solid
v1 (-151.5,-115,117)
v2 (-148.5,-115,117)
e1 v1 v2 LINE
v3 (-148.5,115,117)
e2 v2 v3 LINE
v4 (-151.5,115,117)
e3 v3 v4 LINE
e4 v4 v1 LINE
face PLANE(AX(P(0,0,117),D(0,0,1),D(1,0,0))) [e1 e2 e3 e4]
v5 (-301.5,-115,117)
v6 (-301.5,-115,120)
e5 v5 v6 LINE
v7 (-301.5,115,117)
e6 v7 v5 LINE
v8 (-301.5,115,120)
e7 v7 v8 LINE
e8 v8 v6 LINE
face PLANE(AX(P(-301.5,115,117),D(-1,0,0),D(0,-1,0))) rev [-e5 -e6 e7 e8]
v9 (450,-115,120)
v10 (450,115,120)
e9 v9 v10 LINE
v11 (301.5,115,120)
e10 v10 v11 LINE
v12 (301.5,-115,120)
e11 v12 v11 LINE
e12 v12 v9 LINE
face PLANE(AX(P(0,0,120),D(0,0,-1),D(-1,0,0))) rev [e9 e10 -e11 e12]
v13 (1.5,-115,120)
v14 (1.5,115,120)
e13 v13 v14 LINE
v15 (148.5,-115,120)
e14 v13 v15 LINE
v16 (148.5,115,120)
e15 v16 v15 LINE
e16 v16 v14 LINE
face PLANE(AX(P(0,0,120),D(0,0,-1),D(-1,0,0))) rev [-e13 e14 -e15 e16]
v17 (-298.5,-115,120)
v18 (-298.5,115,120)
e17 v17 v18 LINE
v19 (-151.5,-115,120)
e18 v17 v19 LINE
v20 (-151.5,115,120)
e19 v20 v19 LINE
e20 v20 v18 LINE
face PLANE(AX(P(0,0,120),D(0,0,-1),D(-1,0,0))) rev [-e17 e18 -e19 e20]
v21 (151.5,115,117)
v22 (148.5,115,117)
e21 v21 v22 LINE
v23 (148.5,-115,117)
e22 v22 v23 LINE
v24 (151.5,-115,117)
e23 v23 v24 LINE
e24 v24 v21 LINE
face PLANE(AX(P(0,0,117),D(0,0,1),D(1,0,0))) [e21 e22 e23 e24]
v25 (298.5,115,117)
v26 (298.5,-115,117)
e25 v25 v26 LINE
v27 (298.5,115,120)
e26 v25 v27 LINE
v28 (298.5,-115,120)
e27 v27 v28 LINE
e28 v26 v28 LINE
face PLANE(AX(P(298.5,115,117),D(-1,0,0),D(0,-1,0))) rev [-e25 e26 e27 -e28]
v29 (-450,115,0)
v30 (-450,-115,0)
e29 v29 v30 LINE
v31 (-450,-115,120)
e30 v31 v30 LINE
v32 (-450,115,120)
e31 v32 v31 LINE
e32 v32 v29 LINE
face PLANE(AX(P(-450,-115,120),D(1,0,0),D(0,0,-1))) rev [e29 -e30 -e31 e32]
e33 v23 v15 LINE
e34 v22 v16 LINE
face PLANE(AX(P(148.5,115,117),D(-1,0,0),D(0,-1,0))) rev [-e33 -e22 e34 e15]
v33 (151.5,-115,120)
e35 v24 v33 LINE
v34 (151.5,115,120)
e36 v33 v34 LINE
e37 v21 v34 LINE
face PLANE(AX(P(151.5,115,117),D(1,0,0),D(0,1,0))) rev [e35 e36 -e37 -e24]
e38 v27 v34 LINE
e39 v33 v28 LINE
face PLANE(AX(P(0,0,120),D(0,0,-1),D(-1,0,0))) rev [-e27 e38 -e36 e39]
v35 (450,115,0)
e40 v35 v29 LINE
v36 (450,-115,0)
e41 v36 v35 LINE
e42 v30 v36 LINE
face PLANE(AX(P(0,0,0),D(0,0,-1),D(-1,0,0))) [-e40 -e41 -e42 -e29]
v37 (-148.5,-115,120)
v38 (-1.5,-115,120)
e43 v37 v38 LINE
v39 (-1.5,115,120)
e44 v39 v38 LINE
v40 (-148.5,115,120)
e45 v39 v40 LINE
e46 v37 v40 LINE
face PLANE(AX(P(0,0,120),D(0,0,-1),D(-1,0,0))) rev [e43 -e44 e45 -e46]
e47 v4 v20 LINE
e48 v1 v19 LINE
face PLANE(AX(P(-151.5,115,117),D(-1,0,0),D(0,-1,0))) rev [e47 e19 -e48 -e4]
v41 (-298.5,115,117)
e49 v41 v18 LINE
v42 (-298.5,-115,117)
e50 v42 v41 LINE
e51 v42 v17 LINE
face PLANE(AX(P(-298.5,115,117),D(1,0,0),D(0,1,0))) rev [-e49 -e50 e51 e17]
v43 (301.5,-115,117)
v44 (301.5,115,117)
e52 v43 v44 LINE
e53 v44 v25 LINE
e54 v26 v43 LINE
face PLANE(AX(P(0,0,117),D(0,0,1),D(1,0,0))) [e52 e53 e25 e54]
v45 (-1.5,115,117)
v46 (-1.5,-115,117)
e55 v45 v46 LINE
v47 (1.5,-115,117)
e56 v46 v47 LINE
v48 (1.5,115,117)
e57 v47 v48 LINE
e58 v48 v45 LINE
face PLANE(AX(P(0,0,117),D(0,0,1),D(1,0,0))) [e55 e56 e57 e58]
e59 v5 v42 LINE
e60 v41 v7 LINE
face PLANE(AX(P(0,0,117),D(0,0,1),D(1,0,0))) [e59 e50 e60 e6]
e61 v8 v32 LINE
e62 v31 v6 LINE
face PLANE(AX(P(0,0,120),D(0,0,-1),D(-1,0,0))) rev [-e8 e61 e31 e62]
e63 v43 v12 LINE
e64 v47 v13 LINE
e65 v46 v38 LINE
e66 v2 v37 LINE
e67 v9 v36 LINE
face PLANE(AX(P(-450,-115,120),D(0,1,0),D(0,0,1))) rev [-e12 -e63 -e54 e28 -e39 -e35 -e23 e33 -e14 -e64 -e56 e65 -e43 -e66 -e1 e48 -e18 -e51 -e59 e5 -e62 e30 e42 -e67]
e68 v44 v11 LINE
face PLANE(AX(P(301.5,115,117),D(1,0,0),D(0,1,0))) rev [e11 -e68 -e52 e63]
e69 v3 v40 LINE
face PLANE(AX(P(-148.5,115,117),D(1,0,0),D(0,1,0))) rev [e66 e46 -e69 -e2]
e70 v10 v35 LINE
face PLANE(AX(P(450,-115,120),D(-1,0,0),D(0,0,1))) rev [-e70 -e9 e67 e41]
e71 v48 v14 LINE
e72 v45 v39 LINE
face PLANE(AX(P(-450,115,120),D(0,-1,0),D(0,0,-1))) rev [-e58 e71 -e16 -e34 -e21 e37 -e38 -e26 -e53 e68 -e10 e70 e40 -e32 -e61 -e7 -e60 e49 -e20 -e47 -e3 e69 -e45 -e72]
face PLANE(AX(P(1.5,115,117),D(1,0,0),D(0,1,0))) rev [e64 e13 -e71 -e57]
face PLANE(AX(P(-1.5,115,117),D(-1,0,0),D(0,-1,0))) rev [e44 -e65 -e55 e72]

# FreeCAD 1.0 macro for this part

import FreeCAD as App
import Part
import Sketcher
from FreeCAD import Vector


def add_polygon(sketch, points):
    """Adds a closed chain of lines whose ends are joined by coincident constraints."""
    first, n = sketch.GeometryCount, len(points)
    for a, b in zip(points, points[1:] + points[:1]):
        sketch.addGeometry(Part.LineSegment(App.Vector(*a, 0), App.Vector(*b, 0)), False)
    for i in range(n):
        sketch.addConstraint(Sketcher.Constraint("Coincident", first + i, 2, first + (i + 1) % n, 1))

doc = App.newDocument("Part")
params = doc.addObject("Spreadsheet::Sheet", "Params")
for row, (alias, value) in enumerate([
    ("sketch1_width", "900 mm"),
    ("sketch1_height", "230 mm"),
    ("pad1_length", "120 mm"),
    ("sketch2_width", "3 mm"),
    ("sketch2_height", "230 mm"),
    ("pocket1_length", "3 mm"),
], start=1):
    params.set(f"A{row}", alias)
    params.set(f"B{row}", "=" + value)
    params.setAlias(f"B{row}", alias)

body = doc.addObject("PartDesign::Body", "Body")

# Sketch on XY plane
sketch1 = body.newObject("Sketcher::SketchObject", "Sketch")
sketch1.AttachmentSupport = (doc.getObject("XY_Plane"), [""])
sketch1.MapMode = "FlatFace"
add_polygon(sketch1, [(-450, 115), (-450, -115), (450, -115), (450, 115)])  # lines 0-3
sketch1.addConstraint([
    Sketcher.Constraint("Vertical", 0),
    Sketcher.Constraint("Horizontal", 1),
    Sketcher.Constraint("Vertical", 2),
    Sketcher.Constraint("Horizontal", 3),
    Sketcher.Constraint("Symmetric", 0, 2, 2, 2, -1, 1),
    Sketcher.Constraint("DistanceX", 1, 1, 1, 2, 900.0),
    Sketcher.Constraint("DistanceY", 0, 2, 0, 1, 230.0),
])
sketch1.setExpression("Constraints[9]", "Params.sketch1_width")
sketch1.setExpression("Constraints[10]", "Params.sketch1_height")
pad1 = body.newObject("PartDesign::Pad", "Pad")
pad1.Profile = sketch1
pad1.setExpression("Length", "Params.pad1_length")

# Sketch on XY plane
sketch2 = body.newObject("Sketcher::SketchObject", "Sketch001")
sketch2.AttachmentSupport = (doc.getObject("XY_Plane"), [""])
sketch2.MapMode = "FlatFace"
sketch2.AttachmentOffset = App.Placement(Vector(0, 0, 120), App.Rotation())
add_polygon(sketch2, [(-301.5, 115), (-301.5, -115), (-298.5, -115), (-298.5, 115)])  # lines 0-3
add_polygon(sketch2, [(-151.5, 115), (-151.5, -115), (-148.5, -115), (-148.5, 115)])  # lines 4-7
add_polygon(sketch2, [(-1.5, 115), (-1.5, -115), (1.5, -115), (1.5, 115)])  # lines 8-11
add_polygon(sketch2, [(148.5, 115), (148.5, -115), (151.5, -115), (151.5, 115)])  # lines 12-15
add_polygon(sketch2, [(298.5, 115), (298.5, -115), (301.5, -115), (301.5, 115)])  # lines 16-19
sketch2.addConstraint([
    Sketcher.Constraint("Vertical", 0),
    Sketcher.Constraint("Horizontal", 1),
    Sketcher.Constraint("Vertical", 2),
    Sketcher.Constraint("Horizontal", 3),
    Sketcher.Constraint("Vertical", 4),
    Sketcher.Constraint("Horizontal", 5),
    Sketcher.Constraint("Vertical", 6),
    Sketcher.Constraint("Horizontal", 7),
    Sketcher.Constraint("Vertical", 8),
    Sketcher.Constraint("Horizontal", 9),
    Sketcher.Constraint("Vertical", 10),
    Sketcher.Constraint("Horizontal", 11),
    Sketcher.Constraint("Vertical", 12),
    Sketcher.Constraint("Horizontal", 13),
    Sketcher.Constraint("Vertical", 14),
    Sketcher.Constraint("Horizontal", 15),
    Sketcher.Constraint("Vertical", 16),
    Sketcher.Constraint("Horizontal", 17),
    Sketcher.Constraint("Vertical", 18),
    Sketcher.Constraint("Horizontal", 19),
    Sketcher.Constraint("Symmetric", 8, 2, 10, 2, -1, 1),
    Sketcher.Constraint("Symmetric", 6, 2, 12, 2, -1, 1),
    Sketcher.Constraint("Symmetric", 4, 2, 14, 2, -1, 1),
    Sketcher.Constraint("Symmetric", 2, 2, 16, 2, -1, 1),
    Sketcher.Constraint("Symmetric", 0, 2, 18, 2, -1, 1),
    Sketcher.Constraint("Horizontal", 1, 2, 4, 2),
    Sketcher.Constraint("Horizontal", 3, 2, 6, 2),
    Sketcher.Constraint("Horizontal", 5, 2, 8, 2),
    Sketcher.Constraint("Horizontal", 7, 2, 10, 2),
    Sketcher.Constraint("Equal", 3, 5),
    Sketcher.Constraint("Equal", 7, 9),
    Sketcher.Constraint("DistanceX", 1, 1, 1, 2, 3.0),
    Sketcher.Constraint("DistanceY", 0, 2, 0, 1, 230.0),
    Sketcher.Constraint("DistanceX", 1, 2, 4, 2, 147.0),
    Sketcher.Constraint("DistanceX", 5, 2, 8, 2, 147.0),
])
sketch2.setExpression("Constraints[51]", "Params.sketch2_width")
sketch2.setExpression("Constraints[52]", "Params.sketch2_height")
pocket1 = body.newObject("PartDesign::Pocket", "Pocket")
pocket1.Profile = sketch2
pocket1.setExpression("Length", "Params.pocket1_length")

doc.recompute()
